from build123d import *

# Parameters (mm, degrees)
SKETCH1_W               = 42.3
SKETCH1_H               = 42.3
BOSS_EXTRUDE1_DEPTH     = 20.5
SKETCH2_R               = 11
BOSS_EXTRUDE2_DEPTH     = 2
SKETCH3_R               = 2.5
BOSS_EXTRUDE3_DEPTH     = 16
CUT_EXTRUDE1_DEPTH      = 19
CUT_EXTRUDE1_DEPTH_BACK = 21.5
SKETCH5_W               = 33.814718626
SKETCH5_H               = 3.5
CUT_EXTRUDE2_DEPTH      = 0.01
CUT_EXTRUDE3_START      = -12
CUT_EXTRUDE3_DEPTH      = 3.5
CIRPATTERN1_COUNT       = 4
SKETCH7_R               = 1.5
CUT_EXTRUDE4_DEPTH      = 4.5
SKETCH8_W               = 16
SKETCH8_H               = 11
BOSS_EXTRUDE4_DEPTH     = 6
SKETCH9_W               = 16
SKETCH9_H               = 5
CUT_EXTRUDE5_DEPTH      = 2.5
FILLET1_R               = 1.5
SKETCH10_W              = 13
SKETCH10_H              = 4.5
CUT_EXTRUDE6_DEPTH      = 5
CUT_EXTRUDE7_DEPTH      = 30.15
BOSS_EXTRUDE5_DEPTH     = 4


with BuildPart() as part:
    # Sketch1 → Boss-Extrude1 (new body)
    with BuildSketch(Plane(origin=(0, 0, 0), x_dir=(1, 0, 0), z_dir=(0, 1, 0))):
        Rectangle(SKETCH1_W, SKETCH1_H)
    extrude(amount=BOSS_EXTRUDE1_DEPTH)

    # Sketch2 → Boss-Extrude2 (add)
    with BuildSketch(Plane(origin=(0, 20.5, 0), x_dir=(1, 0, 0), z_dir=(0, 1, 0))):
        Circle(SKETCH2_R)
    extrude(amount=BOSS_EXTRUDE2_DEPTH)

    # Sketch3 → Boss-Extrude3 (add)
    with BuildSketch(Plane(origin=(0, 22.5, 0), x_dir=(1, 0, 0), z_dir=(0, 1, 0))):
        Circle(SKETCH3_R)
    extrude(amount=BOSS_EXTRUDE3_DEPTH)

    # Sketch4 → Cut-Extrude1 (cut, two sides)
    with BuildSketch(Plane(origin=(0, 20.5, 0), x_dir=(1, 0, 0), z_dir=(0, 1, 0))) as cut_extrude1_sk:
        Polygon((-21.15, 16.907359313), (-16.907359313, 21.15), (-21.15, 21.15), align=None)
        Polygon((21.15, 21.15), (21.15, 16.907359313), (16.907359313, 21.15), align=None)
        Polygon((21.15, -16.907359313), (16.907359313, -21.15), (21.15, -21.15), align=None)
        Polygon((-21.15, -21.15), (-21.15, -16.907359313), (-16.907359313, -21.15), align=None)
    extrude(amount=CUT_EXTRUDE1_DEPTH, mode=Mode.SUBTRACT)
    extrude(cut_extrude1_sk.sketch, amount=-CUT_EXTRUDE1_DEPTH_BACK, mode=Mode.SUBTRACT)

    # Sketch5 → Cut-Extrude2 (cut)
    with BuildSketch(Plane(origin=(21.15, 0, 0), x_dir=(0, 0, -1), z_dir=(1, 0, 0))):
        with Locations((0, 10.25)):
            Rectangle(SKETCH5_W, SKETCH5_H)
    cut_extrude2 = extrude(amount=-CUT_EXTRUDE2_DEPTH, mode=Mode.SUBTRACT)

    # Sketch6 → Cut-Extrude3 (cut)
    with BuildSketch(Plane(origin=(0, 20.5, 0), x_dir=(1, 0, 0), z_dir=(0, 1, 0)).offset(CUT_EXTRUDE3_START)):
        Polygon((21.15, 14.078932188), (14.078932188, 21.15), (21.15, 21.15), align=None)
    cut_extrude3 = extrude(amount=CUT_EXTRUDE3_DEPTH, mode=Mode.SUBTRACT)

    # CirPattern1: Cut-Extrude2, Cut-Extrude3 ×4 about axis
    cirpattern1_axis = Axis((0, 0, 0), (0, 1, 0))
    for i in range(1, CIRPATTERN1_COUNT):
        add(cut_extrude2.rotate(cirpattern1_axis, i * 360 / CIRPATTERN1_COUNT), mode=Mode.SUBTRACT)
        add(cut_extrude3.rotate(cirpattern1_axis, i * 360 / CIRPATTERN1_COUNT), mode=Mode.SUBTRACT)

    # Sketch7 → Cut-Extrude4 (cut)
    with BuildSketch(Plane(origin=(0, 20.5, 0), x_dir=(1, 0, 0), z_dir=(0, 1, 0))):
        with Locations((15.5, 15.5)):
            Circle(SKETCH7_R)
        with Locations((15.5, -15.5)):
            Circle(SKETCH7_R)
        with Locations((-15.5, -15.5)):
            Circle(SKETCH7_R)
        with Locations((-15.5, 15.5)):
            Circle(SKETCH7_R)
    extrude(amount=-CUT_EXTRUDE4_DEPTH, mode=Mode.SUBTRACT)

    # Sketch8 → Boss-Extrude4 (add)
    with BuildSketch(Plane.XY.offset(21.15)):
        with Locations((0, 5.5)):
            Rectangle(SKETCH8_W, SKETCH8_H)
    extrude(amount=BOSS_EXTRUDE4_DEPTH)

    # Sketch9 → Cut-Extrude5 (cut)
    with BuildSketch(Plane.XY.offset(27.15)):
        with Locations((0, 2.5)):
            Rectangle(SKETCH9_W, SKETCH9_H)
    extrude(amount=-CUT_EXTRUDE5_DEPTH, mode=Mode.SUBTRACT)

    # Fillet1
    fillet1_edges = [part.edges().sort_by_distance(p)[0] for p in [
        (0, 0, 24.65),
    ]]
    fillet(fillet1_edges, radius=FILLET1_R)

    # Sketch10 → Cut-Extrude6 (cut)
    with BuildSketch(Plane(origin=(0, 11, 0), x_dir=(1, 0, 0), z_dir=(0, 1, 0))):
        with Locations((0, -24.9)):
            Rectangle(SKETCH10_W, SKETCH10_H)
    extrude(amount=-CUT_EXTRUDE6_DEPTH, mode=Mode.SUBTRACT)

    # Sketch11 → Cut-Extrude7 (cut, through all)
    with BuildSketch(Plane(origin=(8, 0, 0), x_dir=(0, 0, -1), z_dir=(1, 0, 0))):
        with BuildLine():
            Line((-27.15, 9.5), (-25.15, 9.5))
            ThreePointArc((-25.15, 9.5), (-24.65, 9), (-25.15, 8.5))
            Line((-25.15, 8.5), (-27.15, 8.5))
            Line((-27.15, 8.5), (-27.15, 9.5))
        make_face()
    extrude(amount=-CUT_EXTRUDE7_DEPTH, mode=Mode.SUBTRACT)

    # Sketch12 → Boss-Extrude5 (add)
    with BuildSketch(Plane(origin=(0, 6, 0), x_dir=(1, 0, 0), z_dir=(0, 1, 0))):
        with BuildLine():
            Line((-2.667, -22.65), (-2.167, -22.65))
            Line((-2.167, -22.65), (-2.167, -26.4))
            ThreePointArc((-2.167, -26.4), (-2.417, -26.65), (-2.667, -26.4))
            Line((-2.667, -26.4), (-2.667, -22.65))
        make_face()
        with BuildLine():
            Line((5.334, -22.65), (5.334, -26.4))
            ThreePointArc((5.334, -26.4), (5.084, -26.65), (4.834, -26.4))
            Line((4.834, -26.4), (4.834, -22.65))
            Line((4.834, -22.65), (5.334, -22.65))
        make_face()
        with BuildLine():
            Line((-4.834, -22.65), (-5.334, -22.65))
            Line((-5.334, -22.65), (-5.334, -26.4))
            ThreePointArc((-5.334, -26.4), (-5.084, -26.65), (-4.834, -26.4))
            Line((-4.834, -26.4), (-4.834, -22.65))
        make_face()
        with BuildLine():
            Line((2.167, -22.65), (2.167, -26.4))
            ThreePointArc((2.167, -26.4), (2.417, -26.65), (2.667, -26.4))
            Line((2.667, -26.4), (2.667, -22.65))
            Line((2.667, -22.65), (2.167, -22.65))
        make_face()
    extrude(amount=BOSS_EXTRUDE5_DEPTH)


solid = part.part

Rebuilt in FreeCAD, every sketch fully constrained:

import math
import FreeCAD as App
import Part
import Sketcher

V = App.Vector


def edges_at(feature, points):
    """Names of the edges that pass closest to the given points."""
    edges = feature.Shape.Edges
    near = lambda p: min(range(len(edges)), key=lambda i: edges[i].distToShape(Part.Vertex(*p))[0])
    return sorted({f"Edge{near(p) + 1}" for p in points})


def add_polygon(sketch, points):
    """Adds a closed chain of lines whose ends are joined by coincident constraints."""
    first, n = sketch.GeometryCount, len(points)
    for a, b in zip(points, points[1:] + points[:1]):
        sketch.addGeometry(Part.LineSegment(App.Vector(*a, 0), App.Vector(*b, 0)), False)
    for i in range(n):
        sketch.addConstraint(Sketcher.Constraint("Coincident", first + i, 2, first + (i + 1) % n, 1))

doc = App.newDocument("Part")
body = doc.addObject("PartDesign::Body", "Body")

# Sketch on XZ plane
sketch1 = body.newObject("Sketcher::SketchObject", "Sketch")
sketch1.AttachmentSupport = (doc.getObject("XZ_Plane"), [""])
sketch1.MapMode = "FlatFace"
add_polygon(sketch1, [(-21, -21), (-21, 21), (21, 21), (21, -21)])  # lines 0-3
sketch1.addConstraint(Sketcher.Constraint("Vertical", 0))
sketch1.addConstraint(Sketcher.Constraint("Horizontal", 1))
sketch1.addConstraint(Sketcher.Constraint("Vertical", 2))
sketch1.addConstraint(Sketcher.Constraint("Horizontal", 3))
sketch1.addConstraint(Sketcher.Constraint("Symmetric", 0, 2, 2, 2, -1, 1))
sketch1.addConstraint(Sketcher.Constraint("Equal", 3, 0))
sketch1.addConstraint(Sketcher.Constraint("DistanceX", 1, 1, 1, 2, 42.3))
pad1 = body.newObject("PartDesign::Pad", "Pad")
pad1.Profile = sketch1
pad1.Length = 20.5
pad1.Reversed = True

# Sketch on XZ plane
sketch2 = body.newObject("Sketcher::SketchObject", "Sketch001")
sketch2.AttachmentSupport = (doc.getObject("XZ_Plane"), [""])
sketch2.MapMode = "FlatFace"
sketch2.AttachmentOffset = App.Placement(V(0, 0, -20.5), App.Rotation())
sketch2.addGeometry(Part.Circle(V(0, 0, 0), V(0, 0, 1), 11), False)
sketch2.addConstraint(Sketcher.Constraint("Coincident", 0, 3, -1, 1))
sketch2.addConstraint(Sketcher.Constraint("Diameter", 0, 22.0))
pad2 = body.newObject("PartDesign::Pad", "Pad001")
pad2.Profile = sketch2
pad2.Length = 2
pad2.Reversed = True

# Sketch on XZ plane
sketch3 = body.newObject("Sketcher::SketchObject", "Sketch002")
sketch3.AttachmentSupport = (doc.getObject("XZ_Plane"), [""])
sketch3.MapMode = "FlatFace"
sketch3.AttachmentOffset = App.Placement(V(0, 0, -22.5), App.Rotation())
sketch3.addGeometry(Part.Circle(V(0, 0, 0), V(0, 0, 1), 2.5), False)
sketch3.addConstraint(Sketcher.Constraint("Coincident", 0, 3, -1, 1))
sketch3.addConstraint(Sketcher.Constraint("Diameter", 0, 5.0))
pad3 = body.newObject("PartDesign::Pad", "Pad002")
pad3.Profile = sketch3
pad3.Length = 16
pad3.Reversed = True

# Sketch on XZ plane
sketch4 = body.newObject("Sketcher::SketchObject", "Sketch003")
sketch4.AttachmentSupport = (doc.getObject("XZ_Plane"), [""])
sketch4.MapMode = "FlatFace"
sketch4.AttachmentOffset = App.Placement(V(0, 0, -20.5), App.Rotation())
add_polygon(sketch4, [(-21.1, -16.9), (-16.9, -21.1), (-21.1, -21.1)])  # lines 0-2
add_polygon(sketch4, [(21.1, -16.9), (21.1, -21.1), (16.9, -21.1)])  # lines 3-5
add_polygon(sketch4, [(21.1, 16.9), (16.9, 21.1), (21.1, 21.1)])  # lines 6-8
add_polygon(sketch4, [(-21.1, 16.9), (-21.1, 21.1), (-16.9, 21.1)])  # lines 9-11
sketch4.addConstraint(Sketcher.Constraint("Horizontal", 1))
sketch4.addConstraint(Sketcher.Constraint("Vertical", 2))
sketch4.addConstraint(Sketcher.Constraint("Vertical", 3))
sketch4.addConstraint(Sketcher.Constraint("Horizontal", 4))
sketch4.addConstraint(Sketcher.Constraint("Horizontal", 7))
sketch4.addConstraint(Sketcher.Constraint("Vertical", 8))
sketch4.addConstraint(Sketcher.Constraint("Vertical", 9))
sketch4.addConstraint(Sketcher.Constraint("Horizontal", 10))
sketch4.addConstraint(Sketcher.Constraint("Symmetric", 0, 2, 6, 2, -1, 1))
sketch4.addConstraint(Sketcher.Constraint("Symmetric", 2, 2, 8, 2, -1, 1))
sketch4.addConstraint(Sketcher.Constraint("Symmetric", 3, 2, 9, 2, -1, 1))
sketch4.addConstraint(Sketcher.Constraint("Symmetric", 1, 2, 3, 2, -2))
sketch4.addConstraint(Sketcher.Constraint("Perpendicular", 0, 5))
sketch4.addConstraint(Sketcher.Constraint("Perpendicular", 6, 11))
sketch4.addConstraint(Sketcher.Constraint("Horizontal", 2, 2, 5, 2))
sketch4.addConstraint(Sketcher.Constraint("Horizontal", 8, 2, 11, 2))
sketch4.addConstraint(Sketcher.Constraint("Vertical", 4, 2, 6, 2))
sketch4.addConstraint(Sketcher.Constraint("Distance", 0, 6.0))
sketch4.addConstraint(Sketcher.Constraint("DistanceX", 1, 2, 3, 2, 42.3))
sketch4.addConstraint(Sketcher.Constraint("DistanceY", 4, 2, 6, 2, 42.3))
pocket1 = body.newObject("PartDesign::Pocket", "Pocket")
pocket1.Profile = sketch4
pocket1.Type = "ThroughAll"
pocket1.Midplane = True

# Sketch on YZ plane
sketch5 = body.newObject("Sketcher::SketchObject", "Sketch004")
sketch5.AttachmentSupport = (doc.getObject("YZ_Plane"), [""])
sketch5.MapMode = "FlatFace"
sketch5.AttachmentOffset = App.Placement(V(0, 0, 21.15), App.Rotation())
add_polygon(sketch5, [(12, 16.9), (8.5, 16.9), (8.5, -16.9), (12, -16.9)])  # lines 0-3
sketch5.addConstraint(Sketcher.Constraint("Horizontal", 0))
sketch5.addConstraint(Sketcher.Constraint("Vertical", 1))
sketch5.addConstraint(Sketcher.Constraint("Horizontal", 2))
sketch5.addConstraint(Sketcher.Constraint("Vertical", 3))
sketch5.addConstraint(Sketcher.Constraint("DistanceX", 0, 2, 0, 1, 3.5))
sketch5.addConstraint(Sketcher.Constraint("DistanceX", -1, 1, 2, 2, 12.0))
sketch5.addConstraint(Sketcher.Constraint("DistanceY", 1, 2, 1, 1, 33.814719))
sketch5.addConstraint(Sketcher.Constraint("DistanceY", -1, 1, 0, 2, 16.907359))
pocket2 = body.newObject("PartDesign::Pocket", "Pocket001")
pocket2.Profile = sketch5
pocket2.Length = 0.01

# Sketch on XZ plane
sketch6 = body.newObject("Sketcher::SketchObject", "Sketch005")
sketch6.AttachmentSupport = (doc.getObject("XZ_Plane"), [""])
sketch6.MapMode = "FlatFace"
sketch6.AttachmentOffset = App.Placement(V(0, 0, -8.5), App.Rotation())
add_polygon(sketch6, [(14, -21), (21, -14), (21, -21)])  # lines 0-2
sketch6.addConstraint(Sketcher.Constraint("Vertical", 1))
sketch6.addConstraint(Sketcher.Constraint("Horizontal", 2))
sketch6.addConstraint(Sketcher.Constraint("Equal", 2, 1))
sketch6.addConstraint(Sketcher.Constraint("Distance", 0, 10.0))
sketch6.addConstraint(Sketcher.Constraint("DistanceX", -1, 1, 0, 2, 21.15))
sketch6.addConstraint(Sketcher.Constraint("DistanceY", 1, 2, -1, 1, 21.15))
pocket3 = body.newObject("PartDesign::Pocket", "Pocket002")
pocket3.Profile = sketch6
pocket3.Length = 3.5
doc.recompute()

polarpattern = body.newObject("PartDesign::PolarPattern", "PolarPattern")
polarpattern.Originals = [pocket2, pocket3]
polarpattern.Axis = (doc.getObject("Y_Axis"), [""])
polarpattern.Angle = 360
polarpattern.Occurrences = 4
body.Tip = polarpattern

# Sketch on XZ plane
sketch7 = body.newObject("Sketcher::SketchObject", "Sketch006")
sketch7.AttachmentSupport = (doc.getObject("XZ_Plane"), [""])
sketch7.MapMode = "FlatFace"
sketch7.AttachmentOffset = App.Placement(V(0, 0, -20.5), App.Rotation())
sketch7.addGeometry(Part.Circle(V(15.5, -15.5, 0), V(0, 0, 1), 1.5), False)
sketch7.addGeometry(Part.Circle(V(15.5, 15.5, 0), V(0, 0, 1), 1.5), False)
sketch7.addGeometry(Part.Circle(V(-15.5, 15.5, 0), V(0, 0, 1), 1.5), False)
sketch7.addGeometry(Part.Circle(V(-15.5, -15.5, 0), V(0, 0, 1), 1.5), False)
sketch7.addConstraint(Sketcher.Constraint("Equal", 0, 1))
sketch7.addConstraint(Sketcher.Constraint("Equal", 1, 2))
sketch7.addConstraint(Sketcher.Constraint("Equal", 2, 3))
sketch7.addConstraint(Sketcher.Constraint("Symmetric", 0, 3, 2, 3, -1, 1))
sketch7.addConstraint(Sketcher.Constraint("Symmetric", 1, 3, 3, 3, -1, 1))
sketch7.addConstraint(Sketcher.Constraint("Symmetric", 1, 3, 2, 3, -2))
sketch7.addConstraint(Sketcher.Constraint("Diameter", 0, 3.0))
sketch7.addConstraint(Sketcher.Constraint("DistanceY", 0, 3, 1, 3, 31.0))
sketch7.addConstraint(Sketcher.Constraint("DistanceX", 2, 3, 1, 3, 31.0))
pocket4 = body.newObject("PartDesign::Pocket", "Pocket003")
pocket4.Profile = sketch7
pocket4.Length = 4.5
pocket4.Reversed = True

# Sketch on XY plane
sketch8 = body.newObject("Sketcher::SketchObject", "Sketch007")
sketch8.AttachmentSupport = (doc.getObject("XY_Plane"), [""])
sketch8.MapMode = "FlatFace"
sketch8.AttachmentOffset = App.Placement(V(0, 0, 21.15), App.Rotation())
add_polygon(sketch8, [(-8, 11), (-8, 0), (8, 0), (8, 11)])  # lines 0-3
sketch8.addConstraint(Sketcher.Constraint("Vertical", 0))
sketch8.addConstraint(Sketcher.Constraint("Horizontal", 1))
sketch8.addConstraint(Sketcher.Constraint("Vertical", 2))
sketch8.addConstraint(Sketcher.Constraint("Horizontal", 3))
sketch8.addConstraint(Sketcher.Constraint("Symmetric", 0, 2, 1, 2, -1, 1))
sketch8.addConstraint(Sketcher.Constraint("DistanceX", 1, 1, 1, 2, 16.0))
sketch8.addConstraint(Sketcher.Constraint("DistanceY", 0, 2, 0, 1, 11.0))
pad4 = body.newObject("PartDesign::Pad", "Pad003")
pad4.Profile = sketch8
pad4.Length = 6

# Sketch on XY plane
sketch9 = body.newObject("Sketcher::SketchObject", "Sketch008")
sketch9.AttachmentSupport = (doc.getObject("XY_Plane"), [""])
sketch9.MapMode = "FlatFace"
sketch9.AttachmentOffset = App.Placement(V(0, 0, 27.15), App.Rotation())
add_polygon(sketch9, [(-8, 5), (-8, 0), (8, 0), (8, 5)])  # lines 0-3
sketch9.addConstraint(Sketcher.Constraint("Vertical", 0))
sketch9.addConstraint(Sketcher.Constraint("Horizontal", 1))
sketch9.addConstraint(Sketcher.Constraint("Vertical", 2))
sketch9.addConstraint(Sketcher.Constraint("Horizontal", 3))
sketch9.addConstraint(Sketcher.Constraint("Symmetric", 0, 2, 1, 2, -1, 1))
sketch9.addConstraint(Sketcher.Constraint("DistanceX", 1, 1, 1, 2, 16.0))
sketch9.addConstraint(Sketcher.Constraint("DistanceY", 0, 2, 0, 1, 5.0))
pocket5 = body.newObject("PartDesign::Pocket", "Pocket004")
pocket5.Profile = sketch9
pocket5.Length = 2.5
doc.recompute()

fillet = body.newObject("PartDesign::Fillet", "Fillet")
fillet.Base = (pocket5, edges_at(pocket5, [(0, 0, 24.65)]))
fillet.Radius = 1.5

# Sketch on XZ plane
sketch10 = body.newObject("Sketcher::SketchObject", "Sketch009")
sketch10.AttachmentSupport = (doc.getObject("XZ_Plane"), [""])
sketch10.MapMode = "FlatFace"
sketch10.AttachmentOffset = App.Placement(V(0, 0, -11), App.Rotation())
add_polygon(sketch10, [(-6.5, 22.6), (-6.5, 27.1), (6.5, 27.1), (6.5, 22.6)])  # lines 0-3
sketch10.addConstraint(Sketcher.Constraint("Vertical", 0))
sketch10.addConstraint(Sketcher.Constraint("Horizontal", 1))
sketch10.addConstraint(Sketcher.Constraint("Vertical", 2))
sketch10.addConstraint(Sketcher.Constraint("Horizontal", 3))
sketch10.addConstraint(Sketcher.Constraint("DistanceX", 1, 1, 1, 2, 13.0))
sketch10.addConstraint(Sketcher.Constraint("DistanceY", 0, 1, 0, 2, 4.5))
sketch10.addConstraint(Sketcher.Constraint("DistanceX", 0, 2, -1, 1, 6.5))
sketch10.addConstraint(Sketcher.Constraint("DistanceY", -1, 1, 0, 2, 27.15))
pocket6 = body.newObject("PartDesign::Pocket", "Pocket005")
pocket6.Profile = sketch10
pocket6.Length = 5
pocket6.Reversed = True

# Sketch on YZ plane
sketch11 = body.newObject("Sketcher::SketchObject", "Sketch010")
sketch11.AttachmentSupport = (doc.getObject("YZ_Plane"), [""])
sketch11.MapMode = "FlatFace"
sketch11.AttachmentOffset = App.Placement(V(0, 0, 8), App.Rotation())
sketch11.addGeometry(Part.LineSegment(V(9.5, 25.1, 0), V(9.5, 27.1, 0)), False)
sketch11.addGeometry(Part.LineSegment(V(9.5, 27.1, 0), V(8.5, 27.1, 0)), False)
sketch11.addGeometry(Part.LineSegment(V(8.5, 27.1, 0), V(8.5, 25.1, 0)), False)
sketch11.addGeometry(Part.ArcOfCircle(Part.Circle(V(9, 25.1, 0), V(0, 0, 1), 0.5), math.radians(180), math.radians(360)), False)
sketch11.addConstraint(Sketcher.Constraint("Coincident", 0, 2, 1, 1))
sketch11.addConstraint(Sketcher.Constraint("Coincident", 1, 2, 2, 1))
sketch11.addConstraint(Sketcher.Constraint("Tangent", 2, 2, 3, 1))
sketch11.addConstraint(Sketcher.Constraint("Tangent", 3, 2, 0, 1))
sketch11.addConstraint(Sketcher.Constraint("Vertical", 0))
sketch11.addConstraint(Sketcher.Constraint("Horizontal", 1))
sketch11.addConstraint(Sketcher.Constraint("Vertical", 2))
sketch11.addConstraint(Sketcher.Constraint("Radius", 3, 0.5))
sketch11.addConstraint(Sketcher.Constraint("DistanceY", 0, 1, 0, 2, 2.0))
sketch11.addConstraint(Sketcher.Constraint("DistanceX", -1, 1, 3, 3, 9.0))
sketch11.addConstraint(Sketcher.Constraint("DistanceY", -1, 1, 3, 3, 25.15))
pocket7 = body.newObject("PartDesign::Pocket", "Pocket006")
pocket7.Profile = sketch11
pocket7.Type = "ThroughAll"

# Sketch on XZ plane
sketch12 = body.newObject("Sketcher::SketchObject", "Sketch011")
sketch12.AttachmentSupport = (doc.getObject("XZ_Plane"), [""])
sketch12.MapMode = "FlatFace"
sketch12.AttachmentOffset = App.Placement(V(0, 0, -6), App.Rotation())
sketch12.addGeometry(Part.LineSegment(V(-2.17, 22.65, 0), V(-2.67, 22.65, 0)), False)
sketch12.addGeometry(Part.LineSegment(V(-2.67, 22.65, 0), V(-2.67, 26.4, 0)), False)
sketch12.addGeometry(Part.ArcOfCircle(Part.Circle(V(-2.42, 26.4, 0), V(0, 0, 1), 0.25), math.radians(0), math.radians(180)), False)
sketch12.addGeometry(Part.LineSegment(V(-2.17, 26.4, 0), V(-2.17, 22.65, 0)), False)
sketch12.addGeometry(Part.LineSegment(V(5.33, 26.4, 0), V(5.33, 22.65, 0)), False)
sketch12.addGeometry(Part.LineSegment(V(5.33, 22.65, 0), V(4.83, 22.65, 0)), False)
sketch12.addGeometry(Part.LineSegment(V(4.83, 22.65, 0), V(4.83, 26.4, 0)), False)
sketch12.addGeometry(Part.ArcOfCircle(Part.Circle(V(5.08, 26.4, 0), V(0, 0, 1), 0.25), math.radians(0), math.radians(180)), False)
sketch12.addGeometry(Part.LineSegment(V(-4.83, 22.65, 0), V(-5.33, 22.65, 0)), False)
sketch12.addGeometry(Part.LineSegment(V(-5.33, 22.65, 0), V(-5.33, 26.4, 0)), False)
sketch12.addGeometry(Part.ArcOfCircle(Part.Circle(V(-5.08, 26.4, 0), V(0, 0, 1), 0.25), math.radians(0), math.radians(180)), False)
sketch12.addGeometry(Part.LineSegment(V(-4.83, 26.4, 0), V(-4.83, 22.65, 0)), False)
sketch12.addGeometry(Part.LineSegment(V(2.17, 22.65, 0), V(2.17, 26.4, 0)), False)
sketch12.addGeometry(Part.ArcOfCircle(Part.Circle(V(2.42, 26.4, 0), V(0, 0, 1), 0.25), math.radians(0), math.radians(180)), False)
sketch12.addGeometry(Part.LineSegment(V(2.67, 26.4, 0), V(2.67, 22.65, 0)), False)
sketch12.addGeometry(Part.LineSegment(V(2.67, 22.65, 0), V(2.17, 22.65, 0)), False)
sketch12.addConstraint(Sketcher.Constraint("Coincident", 0, 2, 1, 1))
sketch12.addConstraint(Sketcher.Constraint("Tangent", 1, 2, 2, 2))
sketch12.addConstraint(Sketcher.Constraint("Tangent", 2, 1, 3, 1))
sketch12.addConstraint(Sketcher.Constraint("Coincident", 3, 2, 0, 1))
sketch12.addConstraint(Sketcher.Constraint("Coincident", 4, 2, 5, 1))
sketch12.addConstraint(Sketcher.Constraint("Coincident", 5, 2, 6, 1))
sketch12.addConstraint(Sketcher.Constraint("Tangent", 6, 2, 7, 2))
sketch12.addConstraint(Sketcher.Constraint("Tangent", 7, 1, 4, 1))
sketch12.addConstraint(Sketcher.Constraint("Coincident", 8, 2, 9, 1))
sketch12.addConstraint(Sketcher.Constraint("Tangent", 9, 2, 10, 2))
sketch12.addConstraint(Sketcher.Constraint("Tangent", 10, 1, 11, 1))
sketch12.addConstraint(Sketcher.Constraint("Coincident", 11, 2, 8, 1))
sketch12.addConstraint(Sketcher.Constraint("Tangent", 12, 2, 13, 2))
sketch12.addConstraint(Sketcher.Constraint("Tangent", 13, 1, 14, 1))
sketch12.addConstraint(Sketcher.Constraint("Coincident", 14, 2, 15, 1))
sketch12.addConstraint(Sketcher.Constraint("Coincident", 15, 2, 12, 1))
sketch12.addConstraint(Sketcher.Constraint("Horizontal", 0))
sketch12.addConstraint(Sketcher.Constraint("Vertical", 1))
sketch12.addConstraint(Sketcher.Constraint("Vertical", 3))
sketch12.addConstraint(Sketcher.Constraint("Vertical", 4))
sketch12.addConstraint(Sketcher.Constraint("Horizontal", 5))
sketch12.addConstraint(Sketcher.Constraint("Vertical", 6))
sketch12.addConstraint(Sketcher.Constraint("Horizontal", 8))
sketch12.addConstraint(Sketcher.Constraint("Vertical", 9))
sketch12.addConstraint(Sketcher.Constraint("Vertical", 11))
sketch12.addConstraint(Sketcher.Constraint("Vertical", 12))
sketch12.addConstraint(Sketcher.Constraint("Vertical", 14))
sketch12.addConstraint(Sketcher.Constraint("Horizontal", 15))
sketch12.addConstraint(Sketcher.Constraint("Equal", 2, 7))
sketch12.addConstraint(Sketcher.Constraint("Equal", 7, 10))
sketch12.addConstraint(Sketcher.Constraint("Equal", 10, 13))
sketch12.addConstraint(Sketcher.Constraint("Symmetric", 7, 3, 10, 3, -2))
sketch12.addConstraint(Sketcher.Constraint("Symmetric", 2, 3, 13, 3, -2))
sketch12.addConstraint(Sketcher.Constraint("Horizontal", 2, 3, 7, 3))
sketch12.addConstraint(Sketcher.Constraint("Horizontal", 3, 2, 4, 2))
sketch12.addConstraint(Sketcher.Constraint("Horizontal", 5, 2, 8, 2))
sketch12.addConstraint(Sketcher.Constraint("Horizontal", 11, 2, 14, 2))
sketch12.addConstraint(Sketcher.Constraint("Radius", 2, 0.25))
sketch12.addConstraint(Sketcher.Constraint("DistanceY", 1, 1, 1, 2, 3.75))
sketch12.addConstraint(Sketcher.Constraint("DistanceY", -1, 1, 2, 3, 26.4))
sketch12.addConstraint(Sketcher.Constraint("DistanceX", 2, 3, -1, 1, 2.417))
sketch12.addConstraint(Sketcher.Constraint("DistanceX", -1, 1, 7, 3, 5.084))
pad5 = body.newObject("PartDesign::Pad", "Pad004")
pad5.Profile = sketch12
pad5.Length = 4
pad5.Reversed = True

doc.recompute()
